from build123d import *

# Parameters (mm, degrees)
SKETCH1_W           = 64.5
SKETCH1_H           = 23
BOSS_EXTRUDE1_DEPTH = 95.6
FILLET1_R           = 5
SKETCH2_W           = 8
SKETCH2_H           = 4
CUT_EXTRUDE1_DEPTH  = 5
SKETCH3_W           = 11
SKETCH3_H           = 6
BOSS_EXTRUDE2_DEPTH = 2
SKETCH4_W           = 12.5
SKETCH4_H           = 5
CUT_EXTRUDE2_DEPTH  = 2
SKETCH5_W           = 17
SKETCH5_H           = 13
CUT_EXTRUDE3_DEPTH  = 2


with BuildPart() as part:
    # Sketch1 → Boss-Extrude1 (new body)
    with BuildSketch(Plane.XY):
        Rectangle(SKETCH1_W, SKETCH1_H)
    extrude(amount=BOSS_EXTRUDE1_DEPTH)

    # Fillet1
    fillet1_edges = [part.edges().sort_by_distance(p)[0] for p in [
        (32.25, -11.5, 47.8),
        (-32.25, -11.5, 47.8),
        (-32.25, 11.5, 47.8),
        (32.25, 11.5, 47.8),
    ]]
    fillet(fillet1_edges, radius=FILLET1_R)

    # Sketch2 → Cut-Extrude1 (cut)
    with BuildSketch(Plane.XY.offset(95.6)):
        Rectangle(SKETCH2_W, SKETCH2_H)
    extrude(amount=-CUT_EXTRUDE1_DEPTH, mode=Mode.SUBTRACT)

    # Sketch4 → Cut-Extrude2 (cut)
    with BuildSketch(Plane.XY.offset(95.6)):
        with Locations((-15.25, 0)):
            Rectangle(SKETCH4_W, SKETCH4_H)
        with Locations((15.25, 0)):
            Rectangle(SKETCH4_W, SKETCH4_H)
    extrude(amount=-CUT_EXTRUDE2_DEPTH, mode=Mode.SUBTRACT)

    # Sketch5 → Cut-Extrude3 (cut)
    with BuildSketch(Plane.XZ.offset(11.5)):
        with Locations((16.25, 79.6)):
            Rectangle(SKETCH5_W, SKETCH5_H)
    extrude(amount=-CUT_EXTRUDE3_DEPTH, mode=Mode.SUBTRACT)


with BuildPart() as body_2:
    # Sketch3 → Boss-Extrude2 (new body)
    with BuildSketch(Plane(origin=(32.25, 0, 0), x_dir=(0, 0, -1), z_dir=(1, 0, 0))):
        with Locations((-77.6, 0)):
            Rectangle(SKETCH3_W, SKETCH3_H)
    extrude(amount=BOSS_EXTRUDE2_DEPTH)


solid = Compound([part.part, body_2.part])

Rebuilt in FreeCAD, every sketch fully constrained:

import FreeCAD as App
import Part
import Sketcher
from FreeCAD import Vector
Q = App.Units.Quantity


def edges_at(feature, points):
    """Names of the edges that pass closest to the given points."""
    edges = feature.Shape.Edges
    near = lambda p: min(range(len(edges)), key=lambda i: edges[i].distToShape(Part.Vertex(*p))[0])
    return sorted({f"Edge{near(p) + 1}" for p in points})


def add_polygon(sketch, points):
    """Adds a closed chain of lines whose ends are joined by coincident constraints."""
    first, n = sketch.GeometryCount, len(points)
    for a, b in zip(points, points[1:] + points[:1]):
        sketch.addGeometry(Part.LineSegment(App.Vector(*a, 0), App.Vector(*b, 0)), False)
    for i in range(n):
        sketch.addConstraint(Sketcher.Constraint("Coincident", first + i, 2, first + (i + 1) % n, 1))

doc = App.newDocument("Part")
body = doc.addObject("PartDesign::Body", "Body")

# Sketch on XY plane
sketch1 = doc.addObject("Sketcher::SketchObject", "Sketch")
body.addObject(sketch1)
sketch1.AttachmentSupport = (doc.XY_Plane, [""])
sketch1.MapMode = "FlatFace"
add_polygon(sketch1, [(-32, 12), (-32, -12), (32, -12), (32, 12)])  # lines 0-3
sketch1.addConstraint([
    Sketcher.Constraint("Vertical", 0),
    Sketcher.Constraint("Horizontal", 1),
    Sketcher.Constraint("Vertical", 2),
    Sketcher.Constraint("Horizontal", 3),
    Sketcher.Constraint("Symmetric", 0, 2, 2, 2, -1, 1),
    Sketcher.Constraint("DistanceY", 0, 2, 0, 1, Q("23 mm")),
    Sketcher.Constraint("DistanceX", 1, 1, 1, 2, Q("64.5 mm")),
])
pad1 = doc.addObject("PartDesign::Pad", "Pad")
body.addObject(pad1)
pad1.Profile = sketch1
pad1.Length = 95.6
doc.recompute()

fillet = doc.addObject("PartDesign::Fillet", "Fillet")
body.addObject(fillet)
fillet.Base = (pad1, edges_at(pad1, [
    (32.25, -11.5, 47.8),
    (-32.25, -11.5, 47.8),
    (-32.25, 11.5, 47.8),
    (32.25, 11.5, 47.8),
]))
fillet.Radius = 5

# Sketch on XY plane
sketch2 = doc.addObject("Sketcher::SketchObject", "Sketch001")
body.addObject(sketch2)
sketch2.AttachmentSupport = (doc.XY_Plane, [""])
sketch2.MapMode = "FlatFace"
sketch2.AttachmentOffset = App.Placement(Vector(0, 0, 95.6), App.Rotation())
add_polygon(sketch2, [(-4, 2), (-4, -2), (4, -2), (4, 2)])  # lines 0-3
sketch2.addConstraint([
    Sketcher.Constraint("Vertical", 0),
    Sketcher.Constraint("Horizontal", 1),
    Sketcher.Constraint("Vertical", 2),
    Sketcher.Constraint("Horizontal", 3),
    Sketcher.Constraint("Symmetric", 0, 2, 2, 2, -1, 1),
    Sketcher.Constraint("DistanceX", 1, 1, 1, 2, Q("8 mm")),
    Sketcher.Constraint("DistanceY", 0, 2, 0, 1, Q("4 mm")),
])
pocket1 = doc.addObject("PartDesign::Pocket", "Pocket")
body.addObject(pocket1)
pocket1.Profile = sketch2
pocket1.Length = 5

# Sketch on XY plane
sketch3 = doc.addObject("Sketcher::SketchObject", "Sketch002")
body.addObject(sketch3)
sketch3.AttachmentSupport = (doc.XY_Plane, [""])
sketch3.MapMode = "FlatFace"
sketch3.AttachmentOffset = App.Placement(Vector(0, 0, 95.6), App.Rotation())
add_polygon(sketch3, [(-22, 2), (-22, -2), (-9, -2), (-9, 2)])  # lines 0-3
add_polygon(sketch3, [(9, 2), (9, -2), (22, -2), (22, 2)])  # lines 4-7
sketch3.addConstraint([
    Sketcher.Constraint("Vertical", 0),
    Sketcher.Constraint("Horizontal", 1),
    Sketcher.Constraint("Vertical", 2),
    Sketcher.Constraint("Horizontal", 3),
    Sketcher.Constraint("Vertical", 4),
    Sketcher.Constraint("Horizontal", 5),
    Sketcher.Constraint("Vertical", 6),
    Sketcher.Constraint("Horizontal", 7),
    Sketcher.Constraint("Symmetric", 2, 2, 4, 2, -1, 1),
    Sketcher.Constraint("Symmetric", 0, 2, 6, 2, -1, 1),
    Sketcher.Constraint("Horizontal", 1, 2, 4, 2),
    Sketcher.Constraint("DistanceY", 0, 2, 0, 1, Q("5 mm")),
    Sketcher.Constraint("DistanceX", 1, 1, 1, 2, Q("12.5 mm")),
    Sketcher.Constraint("DistanceX", 1, 2, -1, 1, Q("9 mm")),
])
pocket2 = doc.addObject("PartDesign::Pocket", "Pocket001")
body.addObject(pocket2)
pocket2.Profile = sketch3
pocket2.Length = 2

# Sketch on XZ plane
sketch4 = doc.addObject("Sketcher::SketchObject", "Sketch003")
body.addObject(sketch4)
sketch4.AttachmentSupport = (doc.XZ_Plane, [""])
sketch4.MapMode = "FlatFace"
sketch4.AttachmentOffset = App.Placement(Vector(0, 0, 11.5), App.Rotation())
add_polygon(sketch4, [(8, 86), (8, 73), (25, 73), (25, 86)])  # lines 0-3
sketch4.addConstraint([
    Sketcher.Constraint("Vertical", 0),
    Sketcher.Constraint("Horizontal", 1),
    Sketcher.Constraint("Vertical", 2),
    Sketcher.Constraint("Horizontal", 3),
    Sketcher.Constraint("DistanceX", 1, 1, 1, 2, Q("17 mm")),
    Sketcher.Constraint("DistanceY", 0, 2, 0, 1, Q("13 mm")),
    Sketcher.Constraint("DistanceY", -1, 1, 0, 2, Q("73.1 mm")),
    Sketcher.Constraint("DistanceX", -1, 1, 0, 2, Q("7.75 mm")),
])
pocket3 = doc.addObject("PartDesign::Pocket", "Pocket002")
body.addObject(pocket3)
pocket3.Profile = sketch4
pocket3.Length = 2
body2 = doc.addObject("PartDesign::Body", "Body001")

# Sketch on YZ plane
sketch5 = doc.addObject("Sketcher::SketchObject", "Sketch004")
body2.addObject(sketch5)
sketch5.AttachmentSupport = (doc.getObject("YZ_Plane001"), [""])
sketch5.MapMode = "FlatFace"
sketch5.AttachmentOffset = App.Placement(Vector(0, 0, 32.25), App.Rotation())
add_polygon(sketch5, [(3, 83), (-3, 83), (-3, 72), (3, 72)])  # lines 0-3
sketch5.addConstraint([
    Sketcher.Constraint("Horizontal", 0),
    Sketcher.Constraint("Vertical", 1),
    Sketcher.Constraint("Horizontal", 2),
    Sketcher.Constraint("Vertical", 3),
    Sketcher.Constraint("DistanceX", 0, 2, 0, 1, Q("6 mm")),
    Sketcher.Constraint("DistanceY", 1, 2, 1, 1, Q("11 mm")),
    Sketcher.Constraint("DistanceX", 0, 2, -1, 1, Q("3 mm")),
    Sketcher.Constraint("DistanceY", -1, 1, 0, 2, Q("83.1 mm")),
])
pad2 = doc.addObject("PartDesign::Pad", "Pad001")
body2.addObject(pad2)
pad2.Profile = sketch5
pad2.Length = 2

doc.recompute()
